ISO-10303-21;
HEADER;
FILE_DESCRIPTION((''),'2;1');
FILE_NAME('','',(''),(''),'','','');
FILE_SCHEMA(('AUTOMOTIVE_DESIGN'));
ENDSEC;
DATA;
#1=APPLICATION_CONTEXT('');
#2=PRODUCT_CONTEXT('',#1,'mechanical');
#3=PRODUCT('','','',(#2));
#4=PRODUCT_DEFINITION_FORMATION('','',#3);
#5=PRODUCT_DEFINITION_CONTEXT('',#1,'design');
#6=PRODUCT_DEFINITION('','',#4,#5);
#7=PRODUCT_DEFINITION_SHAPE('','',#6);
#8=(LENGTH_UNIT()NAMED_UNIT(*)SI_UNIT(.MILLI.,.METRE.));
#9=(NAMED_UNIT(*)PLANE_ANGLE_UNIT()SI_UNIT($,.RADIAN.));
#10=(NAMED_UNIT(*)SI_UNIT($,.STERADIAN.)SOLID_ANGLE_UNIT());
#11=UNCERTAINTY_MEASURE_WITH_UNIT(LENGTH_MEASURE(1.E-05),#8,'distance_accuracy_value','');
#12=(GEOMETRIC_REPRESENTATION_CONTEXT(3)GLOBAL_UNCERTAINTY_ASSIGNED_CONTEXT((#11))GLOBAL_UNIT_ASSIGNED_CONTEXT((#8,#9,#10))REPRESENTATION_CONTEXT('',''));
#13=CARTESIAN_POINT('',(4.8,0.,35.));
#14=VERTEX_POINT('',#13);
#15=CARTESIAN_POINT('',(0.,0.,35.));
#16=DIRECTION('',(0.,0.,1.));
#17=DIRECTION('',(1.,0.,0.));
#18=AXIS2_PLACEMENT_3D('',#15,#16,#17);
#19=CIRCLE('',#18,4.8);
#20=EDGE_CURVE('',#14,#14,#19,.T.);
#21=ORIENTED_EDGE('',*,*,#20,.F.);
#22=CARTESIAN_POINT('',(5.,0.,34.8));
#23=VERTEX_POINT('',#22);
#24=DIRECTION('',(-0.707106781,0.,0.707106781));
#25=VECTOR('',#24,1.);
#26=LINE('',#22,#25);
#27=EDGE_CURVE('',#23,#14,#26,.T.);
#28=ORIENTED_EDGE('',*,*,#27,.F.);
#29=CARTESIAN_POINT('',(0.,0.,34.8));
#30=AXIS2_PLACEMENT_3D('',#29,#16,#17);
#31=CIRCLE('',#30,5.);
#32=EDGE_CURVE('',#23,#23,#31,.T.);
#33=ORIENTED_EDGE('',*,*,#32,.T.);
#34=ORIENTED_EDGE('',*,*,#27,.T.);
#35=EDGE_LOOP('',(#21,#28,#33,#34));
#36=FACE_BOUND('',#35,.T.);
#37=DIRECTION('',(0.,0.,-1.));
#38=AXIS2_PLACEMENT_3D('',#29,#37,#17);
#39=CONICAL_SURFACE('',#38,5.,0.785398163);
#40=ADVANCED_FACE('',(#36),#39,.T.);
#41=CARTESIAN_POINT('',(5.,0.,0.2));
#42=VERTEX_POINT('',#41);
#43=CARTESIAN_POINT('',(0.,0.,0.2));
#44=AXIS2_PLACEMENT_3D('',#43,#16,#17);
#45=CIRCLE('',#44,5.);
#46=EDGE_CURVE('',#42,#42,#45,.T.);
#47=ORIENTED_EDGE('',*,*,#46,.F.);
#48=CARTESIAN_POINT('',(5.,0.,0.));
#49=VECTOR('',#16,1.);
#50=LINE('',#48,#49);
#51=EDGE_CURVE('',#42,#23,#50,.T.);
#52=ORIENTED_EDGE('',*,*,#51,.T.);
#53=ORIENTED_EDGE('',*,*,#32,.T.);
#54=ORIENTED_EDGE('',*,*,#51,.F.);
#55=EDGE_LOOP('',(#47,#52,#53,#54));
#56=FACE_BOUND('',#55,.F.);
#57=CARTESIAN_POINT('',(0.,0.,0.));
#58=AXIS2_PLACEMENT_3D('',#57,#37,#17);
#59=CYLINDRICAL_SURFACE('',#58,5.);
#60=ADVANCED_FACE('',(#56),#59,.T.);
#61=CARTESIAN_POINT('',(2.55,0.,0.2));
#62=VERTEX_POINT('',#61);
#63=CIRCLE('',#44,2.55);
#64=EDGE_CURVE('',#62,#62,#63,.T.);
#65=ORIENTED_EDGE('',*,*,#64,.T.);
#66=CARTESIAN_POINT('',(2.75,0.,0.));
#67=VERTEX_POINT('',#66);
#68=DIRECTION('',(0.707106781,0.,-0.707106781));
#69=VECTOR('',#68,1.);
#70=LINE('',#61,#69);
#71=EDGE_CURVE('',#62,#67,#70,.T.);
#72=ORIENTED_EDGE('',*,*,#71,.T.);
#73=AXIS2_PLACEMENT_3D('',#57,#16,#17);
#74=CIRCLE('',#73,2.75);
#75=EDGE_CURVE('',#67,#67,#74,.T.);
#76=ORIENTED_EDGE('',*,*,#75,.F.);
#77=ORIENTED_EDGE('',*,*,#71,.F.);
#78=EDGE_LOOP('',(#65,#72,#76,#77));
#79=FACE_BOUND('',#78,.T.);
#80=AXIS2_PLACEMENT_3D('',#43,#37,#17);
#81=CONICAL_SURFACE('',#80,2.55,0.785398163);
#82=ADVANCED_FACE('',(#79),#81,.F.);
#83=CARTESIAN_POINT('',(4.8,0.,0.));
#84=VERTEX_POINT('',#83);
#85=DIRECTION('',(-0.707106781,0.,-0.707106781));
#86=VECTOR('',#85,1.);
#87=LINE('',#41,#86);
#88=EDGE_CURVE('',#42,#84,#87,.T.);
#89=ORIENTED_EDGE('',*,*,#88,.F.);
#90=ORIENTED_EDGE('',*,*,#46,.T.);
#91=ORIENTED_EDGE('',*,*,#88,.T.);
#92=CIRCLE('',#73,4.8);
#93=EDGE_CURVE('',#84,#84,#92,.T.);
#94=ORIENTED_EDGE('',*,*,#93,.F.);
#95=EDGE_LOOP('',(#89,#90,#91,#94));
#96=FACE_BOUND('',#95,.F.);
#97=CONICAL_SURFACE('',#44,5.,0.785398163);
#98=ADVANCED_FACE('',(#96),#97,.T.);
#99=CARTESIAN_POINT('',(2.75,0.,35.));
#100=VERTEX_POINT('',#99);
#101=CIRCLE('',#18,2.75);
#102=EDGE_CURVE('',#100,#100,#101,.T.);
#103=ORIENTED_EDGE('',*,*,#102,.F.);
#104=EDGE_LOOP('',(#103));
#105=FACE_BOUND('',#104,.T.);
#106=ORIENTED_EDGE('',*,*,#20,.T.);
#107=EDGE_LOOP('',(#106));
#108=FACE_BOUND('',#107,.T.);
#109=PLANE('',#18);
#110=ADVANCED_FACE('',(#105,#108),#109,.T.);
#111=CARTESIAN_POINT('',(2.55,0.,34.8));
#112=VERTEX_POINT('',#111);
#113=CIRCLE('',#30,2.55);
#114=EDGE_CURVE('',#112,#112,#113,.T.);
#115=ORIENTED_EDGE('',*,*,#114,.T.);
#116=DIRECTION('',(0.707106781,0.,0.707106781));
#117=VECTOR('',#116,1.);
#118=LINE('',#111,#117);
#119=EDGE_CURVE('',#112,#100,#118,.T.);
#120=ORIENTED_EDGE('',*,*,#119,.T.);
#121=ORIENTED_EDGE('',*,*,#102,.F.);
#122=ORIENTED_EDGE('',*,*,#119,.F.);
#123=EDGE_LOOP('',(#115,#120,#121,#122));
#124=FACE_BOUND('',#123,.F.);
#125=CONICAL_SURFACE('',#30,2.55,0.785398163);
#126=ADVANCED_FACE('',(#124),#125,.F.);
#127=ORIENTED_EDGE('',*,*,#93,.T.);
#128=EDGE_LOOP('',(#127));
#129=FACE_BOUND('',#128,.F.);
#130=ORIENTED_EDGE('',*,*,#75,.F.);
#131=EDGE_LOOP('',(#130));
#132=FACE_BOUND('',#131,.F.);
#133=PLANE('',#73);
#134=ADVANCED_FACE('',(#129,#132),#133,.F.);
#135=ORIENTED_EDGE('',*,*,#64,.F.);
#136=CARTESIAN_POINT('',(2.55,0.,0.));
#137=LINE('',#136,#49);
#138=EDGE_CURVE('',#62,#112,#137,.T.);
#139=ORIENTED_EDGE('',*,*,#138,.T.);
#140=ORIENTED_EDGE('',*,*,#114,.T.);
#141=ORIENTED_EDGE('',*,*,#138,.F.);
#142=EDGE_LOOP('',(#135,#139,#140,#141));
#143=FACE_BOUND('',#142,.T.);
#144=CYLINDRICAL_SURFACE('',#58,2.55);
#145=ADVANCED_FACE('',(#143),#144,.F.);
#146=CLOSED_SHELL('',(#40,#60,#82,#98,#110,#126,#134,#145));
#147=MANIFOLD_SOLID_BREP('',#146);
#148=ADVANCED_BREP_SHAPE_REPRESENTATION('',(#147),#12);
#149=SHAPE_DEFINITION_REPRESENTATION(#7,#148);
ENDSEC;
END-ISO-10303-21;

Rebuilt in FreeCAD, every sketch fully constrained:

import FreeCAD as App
import Part
import Sketcher

V = App.Vector


def edges_at(feature, points):
    """Names of the edges that pass closest to the given points."""
    edges = feature.Shape.Edges
    near = lambda p: min(range(len(edges)), key=lambda i: edges[i].distToShape(Part.Vertex(*p))[0])
    return sorted({f"Edge{near(p) + 1}" for p in points})

doc = App.newDocument("Part")
body = doc.addObject("PartDesign::Body", "Body")

# Sketch on XY plane
sketch1 = doc.addObject("Sketcher::SketchObject", "Sketch")
body.addObject(sketch1)
sketch1.AttachmentSupport = (doc.XY_Plane, [""])
sketch1.MapMode = "FlatFace"
sketch1.addGeometry([
    Part.Circle(V(0, 0, 0), V(0, 0, 1), 5),
    Part.Circle(V(0, 0, 0), V(0, 0, 1), 2.5),
], False)
sketch1.addConstraint([
    Sketcher.Constraint("Coincident", 0, 3, -1, 1),
    Sketcher.Constraint("Coincident", 1, 3, -1, 1),
    Sketcher.Constraint("Diameter", 0, 10.0),
    Sketcher.Constraint("Diameter", 1, 5.1),
])
pad1 = doc.addObject("PartDesign::Pad", "Pad")
body.addObject(pad1)
pad1.Profile = sketch1
pad1.Length = 35
doc.recompute()

chamfer = doc.addObject("PartDesign::Chamfer", "Chamfer")
body.addObject(chamfer)
chamfer.Base = (pad1, edges_at(pad1, [
    (-5, 0, 0),
    (-5, 0, 35),
    (-2.55, 0, 0),
    (-2.55, 0, 35),
]))
chamfer.Size = 0.2

doc.recompute()
